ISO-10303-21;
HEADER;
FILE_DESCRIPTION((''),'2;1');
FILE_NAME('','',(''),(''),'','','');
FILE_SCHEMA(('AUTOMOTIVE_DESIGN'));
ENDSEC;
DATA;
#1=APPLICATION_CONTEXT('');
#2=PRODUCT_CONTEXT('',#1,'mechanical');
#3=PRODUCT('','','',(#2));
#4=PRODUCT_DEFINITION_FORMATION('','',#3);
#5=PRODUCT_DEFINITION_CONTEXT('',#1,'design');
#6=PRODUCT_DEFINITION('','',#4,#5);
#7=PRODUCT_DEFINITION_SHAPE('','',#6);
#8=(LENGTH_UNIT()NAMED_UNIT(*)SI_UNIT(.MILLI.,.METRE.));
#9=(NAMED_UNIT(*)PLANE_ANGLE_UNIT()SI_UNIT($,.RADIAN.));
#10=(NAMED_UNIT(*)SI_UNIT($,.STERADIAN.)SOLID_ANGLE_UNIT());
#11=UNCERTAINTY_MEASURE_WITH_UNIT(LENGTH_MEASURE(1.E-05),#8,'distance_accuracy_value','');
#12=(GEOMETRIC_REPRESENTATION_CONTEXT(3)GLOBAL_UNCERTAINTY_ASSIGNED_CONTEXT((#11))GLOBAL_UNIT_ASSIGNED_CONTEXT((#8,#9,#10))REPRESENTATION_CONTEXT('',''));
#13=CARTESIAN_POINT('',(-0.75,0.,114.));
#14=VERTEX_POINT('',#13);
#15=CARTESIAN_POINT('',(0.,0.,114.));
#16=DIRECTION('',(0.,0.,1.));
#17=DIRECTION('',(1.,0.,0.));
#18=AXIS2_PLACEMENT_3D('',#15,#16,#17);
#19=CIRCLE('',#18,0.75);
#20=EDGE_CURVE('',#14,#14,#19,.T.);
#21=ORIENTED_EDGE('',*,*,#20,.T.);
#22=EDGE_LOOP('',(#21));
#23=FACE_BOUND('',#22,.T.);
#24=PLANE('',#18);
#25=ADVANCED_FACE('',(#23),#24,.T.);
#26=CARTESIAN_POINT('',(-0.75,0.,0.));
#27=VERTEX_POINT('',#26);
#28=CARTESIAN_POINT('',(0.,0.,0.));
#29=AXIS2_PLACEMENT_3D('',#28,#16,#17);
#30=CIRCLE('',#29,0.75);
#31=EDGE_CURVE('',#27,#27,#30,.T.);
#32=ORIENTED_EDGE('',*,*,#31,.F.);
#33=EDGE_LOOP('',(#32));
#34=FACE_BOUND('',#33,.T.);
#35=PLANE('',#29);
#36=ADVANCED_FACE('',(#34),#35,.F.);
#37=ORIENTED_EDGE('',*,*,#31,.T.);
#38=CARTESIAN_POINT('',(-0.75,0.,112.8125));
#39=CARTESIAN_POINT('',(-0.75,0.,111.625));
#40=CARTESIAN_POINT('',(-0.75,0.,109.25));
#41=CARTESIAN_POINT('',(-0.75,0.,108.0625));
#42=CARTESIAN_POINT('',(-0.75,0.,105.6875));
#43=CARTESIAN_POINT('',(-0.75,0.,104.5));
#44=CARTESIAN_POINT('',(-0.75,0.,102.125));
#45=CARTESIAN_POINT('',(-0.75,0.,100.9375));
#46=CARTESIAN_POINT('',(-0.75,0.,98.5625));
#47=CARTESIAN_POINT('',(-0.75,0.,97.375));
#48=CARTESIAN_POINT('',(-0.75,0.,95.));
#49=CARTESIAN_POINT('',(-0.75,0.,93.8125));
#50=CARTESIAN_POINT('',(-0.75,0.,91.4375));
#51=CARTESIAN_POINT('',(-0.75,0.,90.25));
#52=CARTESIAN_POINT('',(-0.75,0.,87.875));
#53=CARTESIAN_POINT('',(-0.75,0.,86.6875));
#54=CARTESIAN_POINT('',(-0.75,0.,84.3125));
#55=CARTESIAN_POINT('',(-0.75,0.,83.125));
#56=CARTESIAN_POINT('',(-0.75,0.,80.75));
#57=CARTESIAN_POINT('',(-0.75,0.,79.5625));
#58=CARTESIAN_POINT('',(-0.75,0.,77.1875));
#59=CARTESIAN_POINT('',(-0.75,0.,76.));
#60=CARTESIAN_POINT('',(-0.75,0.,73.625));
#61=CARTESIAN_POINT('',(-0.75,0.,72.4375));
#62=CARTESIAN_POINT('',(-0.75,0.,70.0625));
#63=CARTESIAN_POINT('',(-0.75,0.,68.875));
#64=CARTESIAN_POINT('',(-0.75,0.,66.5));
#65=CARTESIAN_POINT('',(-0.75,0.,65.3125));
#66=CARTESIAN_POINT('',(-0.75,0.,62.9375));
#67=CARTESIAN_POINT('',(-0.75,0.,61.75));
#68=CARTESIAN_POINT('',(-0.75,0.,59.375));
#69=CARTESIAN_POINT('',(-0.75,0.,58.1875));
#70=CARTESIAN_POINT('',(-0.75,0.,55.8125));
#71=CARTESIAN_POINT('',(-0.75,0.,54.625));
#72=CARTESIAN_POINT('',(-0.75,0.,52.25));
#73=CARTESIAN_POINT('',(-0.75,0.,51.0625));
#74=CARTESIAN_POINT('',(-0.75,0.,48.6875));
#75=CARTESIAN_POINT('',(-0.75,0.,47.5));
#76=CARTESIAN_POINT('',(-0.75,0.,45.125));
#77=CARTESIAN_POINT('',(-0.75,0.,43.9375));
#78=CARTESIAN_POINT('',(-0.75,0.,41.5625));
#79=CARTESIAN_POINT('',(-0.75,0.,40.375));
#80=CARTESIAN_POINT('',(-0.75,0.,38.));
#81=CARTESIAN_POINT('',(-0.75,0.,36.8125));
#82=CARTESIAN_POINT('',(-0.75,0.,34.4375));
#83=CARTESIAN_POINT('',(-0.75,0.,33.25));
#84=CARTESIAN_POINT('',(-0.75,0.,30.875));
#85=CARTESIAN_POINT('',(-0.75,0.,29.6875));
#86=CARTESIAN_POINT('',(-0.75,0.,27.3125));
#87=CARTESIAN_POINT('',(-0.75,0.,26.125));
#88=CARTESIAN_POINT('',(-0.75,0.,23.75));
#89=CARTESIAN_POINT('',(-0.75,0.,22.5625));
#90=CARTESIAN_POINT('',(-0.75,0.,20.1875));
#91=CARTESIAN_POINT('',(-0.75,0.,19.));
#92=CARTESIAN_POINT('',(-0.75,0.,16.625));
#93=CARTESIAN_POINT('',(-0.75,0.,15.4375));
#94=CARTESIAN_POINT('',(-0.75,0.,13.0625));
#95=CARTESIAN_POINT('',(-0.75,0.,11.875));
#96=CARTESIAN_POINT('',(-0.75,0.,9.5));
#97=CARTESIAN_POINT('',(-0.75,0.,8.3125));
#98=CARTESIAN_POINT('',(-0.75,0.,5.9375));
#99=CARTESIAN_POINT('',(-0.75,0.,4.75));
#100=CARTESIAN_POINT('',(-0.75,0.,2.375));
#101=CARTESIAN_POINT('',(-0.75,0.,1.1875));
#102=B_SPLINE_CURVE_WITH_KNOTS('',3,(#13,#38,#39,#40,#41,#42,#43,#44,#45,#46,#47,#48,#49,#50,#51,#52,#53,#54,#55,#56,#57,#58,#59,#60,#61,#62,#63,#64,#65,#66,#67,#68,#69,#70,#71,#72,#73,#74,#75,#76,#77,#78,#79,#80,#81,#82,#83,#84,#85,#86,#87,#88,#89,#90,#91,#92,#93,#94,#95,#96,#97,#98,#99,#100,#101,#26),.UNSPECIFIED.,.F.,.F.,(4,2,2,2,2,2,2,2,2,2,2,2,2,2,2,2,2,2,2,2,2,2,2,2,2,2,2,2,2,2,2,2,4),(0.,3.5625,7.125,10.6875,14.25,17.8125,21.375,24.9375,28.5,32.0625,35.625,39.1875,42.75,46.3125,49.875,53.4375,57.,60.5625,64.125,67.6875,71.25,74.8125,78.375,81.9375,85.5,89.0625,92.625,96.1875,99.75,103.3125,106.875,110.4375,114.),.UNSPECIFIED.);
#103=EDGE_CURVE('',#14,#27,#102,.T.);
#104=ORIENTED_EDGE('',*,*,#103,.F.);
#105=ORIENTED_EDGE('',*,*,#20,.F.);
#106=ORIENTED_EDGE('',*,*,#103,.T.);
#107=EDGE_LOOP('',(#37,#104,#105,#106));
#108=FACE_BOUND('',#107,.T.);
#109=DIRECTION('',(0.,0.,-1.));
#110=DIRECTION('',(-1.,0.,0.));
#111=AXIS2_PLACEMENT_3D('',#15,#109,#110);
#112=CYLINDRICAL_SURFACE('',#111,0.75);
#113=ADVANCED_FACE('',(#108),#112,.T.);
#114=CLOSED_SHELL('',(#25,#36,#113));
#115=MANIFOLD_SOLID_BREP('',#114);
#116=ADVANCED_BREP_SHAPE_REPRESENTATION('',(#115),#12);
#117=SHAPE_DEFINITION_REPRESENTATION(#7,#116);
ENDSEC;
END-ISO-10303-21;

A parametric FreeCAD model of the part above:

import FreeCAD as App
import Part
import Sketcher

V = App.Vector
Q = App.Units.Quantity

doc = App.newDocument("Part")
body = doc.addObject("PartDesign::Body", "Body")

# Sketch on XY plane
sketch1 = body.newObject("Sketcher::SketchObject", "Sketch")
sketch1.AttachmentSupport = (doc.getObject("XY_Plane"), [""])
sketch1.MapMode = "FlatFace"
sketch1.addGeometry(Part.Circle(V(0, 0, 0), V(0, 0, 1), 0.8), False)
sketch1.addConstraint([
    Sketcher.Constraint("Coincident", 0, 3, -1, 1),
    Sketcher.Constraint("Diameter", 0, Q("1.5 mm")),
])
pad1 = body.newObject("PartDesign::Pad", "Pad")
pad1.Profile = sketch1
pad1.Length = 114

doc.recompute()
